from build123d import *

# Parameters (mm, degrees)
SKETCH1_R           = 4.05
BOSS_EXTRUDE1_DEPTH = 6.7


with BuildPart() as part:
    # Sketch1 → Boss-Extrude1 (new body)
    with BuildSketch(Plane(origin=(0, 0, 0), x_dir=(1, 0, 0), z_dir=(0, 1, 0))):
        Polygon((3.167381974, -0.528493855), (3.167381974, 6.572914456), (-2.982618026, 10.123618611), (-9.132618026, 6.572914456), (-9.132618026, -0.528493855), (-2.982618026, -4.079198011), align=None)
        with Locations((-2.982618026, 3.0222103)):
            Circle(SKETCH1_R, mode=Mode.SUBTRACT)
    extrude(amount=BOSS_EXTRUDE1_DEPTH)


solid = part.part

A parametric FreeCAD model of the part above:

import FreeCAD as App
import Part
import Sketcher
from FreeCAD import Vector
Q = App.Units.Quantity


def add_polygon(sketch, points):
    """Adds a closed chain of lines whose ends are joined by coincident constraints."""
    first, n = sketch.GeometryCount, len(points)
    for a, b in zip(points, points[1:] + points[:1]):
        sketch.addGeometry(Part.LineSegment(App.Vector(*a, 0), App.Vector(*b, 0)), False)
    for i in range(n):
        sketch.addConstraint(Sketcher.Constraint("Coincident", first + i, 2, first + (i + 1) % n, 1))

doc = App.newDocument("Part")
body = doc.addObject("PartDesign::Body", "Body")

# Sketch on XZ plane
sketch1 = doc.addObject("Sketcher::SketchObject", "Sketch")
body.addObject(sketch1)
sketch1.AttachmentSupport = (doc.XZ_Plane, [""])
sketch1.MapMode = "FlatFace"
add_polygon(sketch1, [(3.167382, 0.528494), (3.167382, -6.572914), (-2.982618, -10.123619), (-9.132618, -6.572914), (-9.132618, 0.528494), (-2.982618, 4.079198)])  # lines 0-5
sketch1.addGeometry(Part.Circle(Vector(-2.982618, -3.02221, 0), Vector(0, 0, 1), 4.05), False)  # 6
sketch1.addConstraint(Sketcher.Constraint("Vertical", 0))
sketch1.addConstraint(Sketcher.Constraint("Vertical", 3))
sketch1.addConstraint(Sketcher.Constraint("Parallel", 1, 4))
sketch1.addConstraint(Sketcher.Constraint("Parallel", 2, 5))
sketch1.addConstraint(Sketcher.Constraint("Horizontal", 0, 2, 2, 2))
sketch1.addConstraint(Sketcher.Constraint("Horizontal", 3, 2, 5, 2))
sketch1.addConstraint(Sketcher.Constraint("Vertical", 6, 3, 1, 2))
sketch1.addConstraint(Sketcher.Constraint("Vertical", 1, 2, 4, 2))
sketch1.addConstraint(Sketcher.Constraint("Diameter", 6, Q("8.1 mm")))
sketch1.addConstraint(Sketcher.Constraint("Angle", 1, Q("-150 deg")))
sketch1.addConstraint(Sketcher.Constraint("DistanceX", 2, 2, 0, 2, Q("12.3 mm")))
sketch1.addConstraint(Sketcher.Constraint("DistanceY", 0, 2, 0, 1, Q("7.101408 mm")))
sketch1.addConstraint(Sketcher.Constraint("DistanceY", -1, 1, 4, 2, Q("4.079198 mm")))
sketch1.addConstraint(Sketcher.Constraint("DistanceX", 6, 3, -1, 1, Q("2.982618 mm")))
sketch1.addConstraint(Sketcher.Constraint("DistanceY", 6, 3, -1, 1, Q("3.02221 mm")))
pad1 = doc.addObject("PartDesign::Pad", "Pad")
body.addObject(pad1)
pad1.Profile = sketch1
pad1.Length = 6.7
pad1.Reversed = True

doc.recompute()
